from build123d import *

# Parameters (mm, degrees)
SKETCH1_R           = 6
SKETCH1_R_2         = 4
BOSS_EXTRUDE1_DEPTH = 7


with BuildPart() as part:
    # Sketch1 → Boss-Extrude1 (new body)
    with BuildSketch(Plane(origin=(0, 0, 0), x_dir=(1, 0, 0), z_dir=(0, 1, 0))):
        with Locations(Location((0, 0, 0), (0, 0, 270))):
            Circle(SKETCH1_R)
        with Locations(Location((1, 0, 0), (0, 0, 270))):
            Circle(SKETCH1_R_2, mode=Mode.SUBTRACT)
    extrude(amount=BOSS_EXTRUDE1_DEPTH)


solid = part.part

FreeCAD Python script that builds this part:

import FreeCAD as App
import Part
import Sketcher
from FreeCAD import Vector

doc = App.newDocument("Part")
params = doc.addObject("Spreadsheet::Sheet", "Params")
for row, (alias, value) in enumerate([
    ("sketch1_diameter", "12 mm"),
    ("sketch1_diameter2", "8 mm"),
    ("pad1_length", "7 mm"),
], start=1):
    params.set(f"A{row}", alias)
    params.set(f"B{row}", "=" + value)
    params.setAlias(f"B{row}", alias)

body = doc.addObject("PartDesign::Body", "Body")

sketch1 = body.newObject("Sketcher::SketchObject", "Sketch")
sketch1.AttachmentSupport = (doc.getObject("XZ_Plane"), [""])
sketch1.MapMode = "FlatFace"
sketch1.addGeometry(Part.Circle(Vector(0, 0, 0), Vector(0, 0, 1), 6), False)
sketch1.addGeometry(Part.Circle(Vector(1, 0, 0), Vector(0, 0, 1), 4), False)
sketch1.addConstraint(Sketcher.Constraint("Coincident", 0, 3, -1, 1))
sketch1.addConstraint(Sketcher.Constraint("PointOnObject", 1, 3, -1))
sketch1.addConstraint(Sketcher.Constraint("Diameter", 0, 12.0))
sketch1.addConstraint(Sketcher.Constraint("Diameter", 1, 8.0))
sketch1.addConstraint(Sketcher.Constraint("DistanceX", -1, 1, 1, 3, 1.0))
sketch1.setExpression("Constraints[2]", "Params.sketch1_diameter")
sketch1.setExpression("Constraints[3]", "Params.sketch1_diameter2")
pad1 = body.newObject("PartDesign::Pad", "Pad")
pad1.Profile = sketch1
pad1.setExpression("Length", "Params.pad1_length")
pad1.Reversed = True

doc.recompute()
